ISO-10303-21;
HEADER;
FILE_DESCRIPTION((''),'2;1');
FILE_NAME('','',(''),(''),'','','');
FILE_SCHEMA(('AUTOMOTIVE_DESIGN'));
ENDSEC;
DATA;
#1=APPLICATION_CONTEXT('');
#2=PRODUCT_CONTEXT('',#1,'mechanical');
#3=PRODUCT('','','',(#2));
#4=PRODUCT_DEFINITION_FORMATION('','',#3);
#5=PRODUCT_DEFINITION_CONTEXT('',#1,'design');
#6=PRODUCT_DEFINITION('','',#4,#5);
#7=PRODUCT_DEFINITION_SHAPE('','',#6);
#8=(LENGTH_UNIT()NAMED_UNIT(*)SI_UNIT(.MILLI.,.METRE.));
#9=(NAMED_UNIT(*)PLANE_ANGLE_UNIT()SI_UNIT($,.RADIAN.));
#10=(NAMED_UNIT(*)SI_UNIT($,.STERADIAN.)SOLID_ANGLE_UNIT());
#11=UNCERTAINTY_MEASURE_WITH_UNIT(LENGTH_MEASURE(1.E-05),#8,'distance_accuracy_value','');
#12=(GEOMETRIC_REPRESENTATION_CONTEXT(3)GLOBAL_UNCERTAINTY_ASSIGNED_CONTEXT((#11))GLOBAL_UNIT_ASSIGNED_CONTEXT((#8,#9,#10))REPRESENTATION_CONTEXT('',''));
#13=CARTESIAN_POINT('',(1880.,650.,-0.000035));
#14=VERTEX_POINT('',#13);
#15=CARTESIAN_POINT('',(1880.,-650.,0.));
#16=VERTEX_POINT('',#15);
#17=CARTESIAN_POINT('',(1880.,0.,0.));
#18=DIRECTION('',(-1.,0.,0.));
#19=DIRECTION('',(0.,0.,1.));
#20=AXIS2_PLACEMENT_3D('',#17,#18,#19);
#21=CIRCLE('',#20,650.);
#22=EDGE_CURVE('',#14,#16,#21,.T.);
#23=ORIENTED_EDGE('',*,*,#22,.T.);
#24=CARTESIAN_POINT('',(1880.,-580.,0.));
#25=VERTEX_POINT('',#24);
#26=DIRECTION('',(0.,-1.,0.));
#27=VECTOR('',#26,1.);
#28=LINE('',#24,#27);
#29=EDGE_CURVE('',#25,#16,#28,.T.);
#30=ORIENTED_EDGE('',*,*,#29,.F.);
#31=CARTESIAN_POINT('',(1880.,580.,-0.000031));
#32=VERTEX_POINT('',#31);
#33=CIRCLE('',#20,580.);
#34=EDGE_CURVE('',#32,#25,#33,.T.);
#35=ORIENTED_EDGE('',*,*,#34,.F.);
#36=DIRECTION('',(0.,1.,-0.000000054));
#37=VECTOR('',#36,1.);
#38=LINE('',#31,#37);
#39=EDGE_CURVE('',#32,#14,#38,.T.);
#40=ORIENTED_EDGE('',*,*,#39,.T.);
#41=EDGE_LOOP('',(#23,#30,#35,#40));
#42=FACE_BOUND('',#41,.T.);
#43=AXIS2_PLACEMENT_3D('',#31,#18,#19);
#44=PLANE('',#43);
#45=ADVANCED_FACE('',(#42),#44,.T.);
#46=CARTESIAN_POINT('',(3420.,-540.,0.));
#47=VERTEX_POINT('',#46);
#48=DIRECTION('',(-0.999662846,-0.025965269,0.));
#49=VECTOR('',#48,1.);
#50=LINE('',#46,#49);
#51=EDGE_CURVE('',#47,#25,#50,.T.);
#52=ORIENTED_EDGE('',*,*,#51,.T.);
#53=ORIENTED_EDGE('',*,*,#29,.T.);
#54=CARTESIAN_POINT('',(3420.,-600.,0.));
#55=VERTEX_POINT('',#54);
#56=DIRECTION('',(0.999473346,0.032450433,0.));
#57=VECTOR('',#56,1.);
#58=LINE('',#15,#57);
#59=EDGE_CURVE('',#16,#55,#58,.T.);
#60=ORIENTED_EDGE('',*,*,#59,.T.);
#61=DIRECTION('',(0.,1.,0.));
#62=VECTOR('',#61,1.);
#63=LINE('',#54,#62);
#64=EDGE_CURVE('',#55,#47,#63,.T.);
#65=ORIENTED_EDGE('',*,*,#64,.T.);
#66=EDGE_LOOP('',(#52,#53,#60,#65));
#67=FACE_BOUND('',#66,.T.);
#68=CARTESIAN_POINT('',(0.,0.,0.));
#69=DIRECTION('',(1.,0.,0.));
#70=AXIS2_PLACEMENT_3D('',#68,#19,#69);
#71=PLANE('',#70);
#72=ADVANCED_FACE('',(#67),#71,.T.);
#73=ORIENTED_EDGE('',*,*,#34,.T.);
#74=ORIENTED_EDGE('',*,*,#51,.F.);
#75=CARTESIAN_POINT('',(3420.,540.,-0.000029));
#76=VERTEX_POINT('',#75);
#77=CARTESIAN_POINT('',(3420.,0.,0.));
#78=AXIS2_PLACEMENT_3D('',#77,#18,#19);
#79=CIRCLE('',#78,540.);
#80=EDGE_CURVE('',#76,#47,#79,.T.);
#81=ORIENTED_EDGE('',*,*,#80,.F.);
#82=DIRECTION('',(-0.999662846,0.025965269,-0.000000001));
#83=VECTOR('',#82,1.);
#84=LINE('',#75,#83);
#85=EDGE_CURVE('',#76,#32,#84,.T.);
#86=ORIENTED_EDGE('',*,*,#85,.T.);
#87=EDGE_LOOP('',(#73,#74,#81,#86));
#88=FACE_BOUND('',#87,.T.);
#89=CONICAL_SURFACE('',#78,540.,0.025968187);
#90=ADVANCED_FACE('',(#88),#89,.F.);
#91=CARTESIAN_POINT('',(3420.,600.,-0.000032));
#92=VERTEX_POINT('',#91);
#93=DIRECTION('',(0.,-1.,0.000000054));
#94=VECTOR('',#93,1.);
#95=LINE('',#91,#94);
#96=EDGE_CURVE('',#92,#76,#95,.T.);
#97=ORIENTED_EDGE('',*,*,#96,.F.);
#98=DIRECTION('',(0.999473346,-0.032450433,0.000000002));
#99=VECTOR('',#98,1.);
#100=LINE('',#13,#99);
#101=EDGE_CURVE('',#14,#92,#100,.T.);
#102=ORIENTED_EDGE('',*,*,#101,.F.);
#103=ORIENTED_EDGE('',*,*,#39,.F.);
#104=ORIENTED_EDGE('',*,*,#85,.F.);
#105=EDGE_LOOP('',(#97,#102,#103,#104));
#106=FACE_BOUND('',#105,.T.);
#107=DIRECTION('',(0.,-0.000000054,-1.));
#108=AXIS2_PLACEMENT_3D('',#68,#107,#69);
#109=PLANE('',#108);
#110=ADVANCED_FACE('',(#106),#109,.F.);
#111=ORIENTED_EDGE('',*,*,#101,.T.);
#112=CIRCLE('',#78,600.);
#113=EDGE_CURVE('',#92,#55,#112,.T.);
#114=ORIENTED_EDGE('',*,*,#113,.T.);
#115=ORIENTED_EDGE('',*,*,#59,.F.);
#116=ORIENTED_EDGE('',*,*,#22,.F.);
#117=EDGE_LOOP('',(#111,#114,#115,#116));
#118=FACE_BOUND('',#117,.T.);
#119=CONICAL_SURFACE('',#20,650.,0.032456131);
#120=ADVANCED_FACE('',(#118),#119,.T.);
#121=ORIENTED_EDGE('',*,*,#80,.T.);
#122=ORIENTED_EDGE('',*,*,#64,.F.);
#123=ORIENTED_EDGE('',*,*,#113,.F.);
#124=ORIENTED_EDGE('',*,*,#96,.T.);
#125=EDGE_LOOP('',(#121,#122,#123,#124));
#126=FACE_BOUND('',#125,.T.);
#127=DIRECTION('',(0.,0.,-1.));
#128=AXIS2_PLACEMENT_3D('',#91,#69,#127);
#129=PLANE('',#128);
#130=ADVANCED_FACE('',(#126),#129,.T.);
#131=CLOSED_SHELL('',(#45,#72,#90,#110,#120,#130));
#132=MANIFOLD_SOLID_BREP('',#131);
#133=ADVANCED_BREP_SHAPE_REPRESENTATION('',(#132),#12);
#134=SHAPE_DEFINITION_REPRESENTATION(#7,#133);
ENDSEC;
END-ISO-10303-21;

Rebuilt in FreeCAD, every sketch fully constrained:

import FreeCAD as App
import Part
import Sketcher

V = App.Vector


def add_polygon(sketch, points):
    """Adds a closed chain of lines whose ends are joined by coincident constraints."""
    first, n = sketch.GeometryCount, len(points)
    for a, b in zip(points, points[1:] + points[:1]):
        sketch.addGeometry(Part.LineSegment(App.Vector(*a, 0), App.Vector(*b, 0)), False)
    for i in range(n):
        sketch.addConstraint(Sketcher.Constraint("Coincident", first + i, 2, first + (i + 1) % n, 1))

doc = App.newDocument("Part")
body = doc.addObject("PartDesign::Body", "Body")

sketch1 = doc.addObject("Sketcher::SketchObject", "Sketch")
body.addObject(sketch1)
sketch1.AttachmentSupport = (doc.XY_Plane, [""])
sketch1.MapMode = "FlatFace"
add_polygon(sketch1, [(1880, -580), (1880, -650), (3420, -600), (3420, -540)])
sketch1.addConstraint([
    Sketcher.Constraint("Vertical", 0),
    Sketcher.Constraint("Vertical", 2),
    Sketcher.Constraint("DistanceY", 0, 2, 0, 1, 70.0),
    Sketcher.Constraint("DistanceY", 2, 1, 2, 2, 60.0),
    Sketcher.Constraint("DistanceX", -1, 1, 0, 2, 1880.0),
    Sketcher.Constraint("DistanceY", 0, 2, -1, 1, 650.0),
    Sketcher.Constraint("DistanceX", -1, 1, 1, 2, 3420.0),
    Sketcher.Constraint("DistanceY", 1, 2, -1, 1, 600.0),
])
revolution = doc.addObject("PartDesign::Revolution", "Revolution")
body.addObject(revolution)
revolution.Profile = sketch1
revolution.ReferenceAxis = (sketch1, ["H_Axis"])
revolution.Angle = 179.999997

doc.recompute()
